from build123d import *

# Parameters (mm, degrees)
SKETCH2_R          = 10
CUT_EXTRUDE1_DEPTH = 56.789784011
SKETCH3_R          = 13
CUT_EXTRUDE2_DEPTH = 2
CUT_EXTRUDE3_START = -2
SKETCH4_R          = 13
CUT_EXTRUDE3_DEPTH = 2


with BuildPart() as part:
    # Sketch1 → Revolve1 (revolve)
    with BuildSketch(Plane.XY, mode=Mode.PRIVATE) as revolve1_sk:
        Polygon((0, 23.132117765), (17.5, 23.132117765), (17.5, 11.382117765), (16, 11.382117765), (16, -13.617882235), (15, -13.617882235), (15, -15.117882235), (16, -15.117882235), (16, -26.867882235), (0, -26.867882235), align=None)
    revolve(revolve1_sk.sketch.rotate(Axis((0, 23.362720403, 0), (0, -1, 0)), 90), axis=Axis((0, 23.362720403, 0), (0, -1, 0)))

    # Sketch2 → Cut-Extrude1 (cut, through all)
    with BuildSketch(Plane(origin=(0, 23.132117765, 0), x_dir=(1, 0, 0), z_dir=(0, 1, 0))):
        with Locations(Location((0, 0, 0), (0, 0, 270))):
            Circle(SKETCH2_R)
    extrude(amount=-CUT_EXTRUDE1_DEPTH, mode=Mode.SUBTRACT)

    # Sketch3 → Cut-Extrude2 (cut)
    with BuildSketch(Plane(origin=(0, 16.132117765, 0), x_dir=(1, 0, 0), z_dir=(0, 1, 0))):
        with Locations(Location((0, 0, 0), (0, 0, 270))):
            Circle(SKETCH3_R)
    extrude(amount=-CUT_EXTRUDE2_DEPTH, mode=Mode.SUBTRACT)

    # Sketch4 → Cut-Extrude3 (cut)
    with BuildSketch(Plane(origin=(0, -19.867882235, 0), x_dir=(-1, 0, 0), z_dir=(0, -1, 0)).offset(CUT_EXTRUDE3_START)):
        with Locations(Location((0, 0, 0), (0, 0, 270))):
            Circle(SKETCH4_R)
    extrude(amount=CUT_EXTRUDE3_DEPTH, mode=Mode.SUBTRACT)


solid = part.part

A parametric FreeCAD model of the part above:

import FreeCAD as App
import Part
import Sketcher

doc = App.newDocument("Part")
body = doc.addObject("PartDesign::Body", "Body")

# Sketch on XY plane
sketch1 = body.newObject("Sketcher::SketchObject", "Sketch")
sketch1.AttachmentSupport = (doc.getObject("XY_Plane"), [""])
sketch1.MapMode = "FlatFace"
sketch1.addGeometry([
    Part.LineSegment(App.Vector(17.5, 23.1, 0), App.Vector(0, 23.1, 0)),  # 0
    Part.LineSegment(App.Vector(0, 23.1, 0), App.Vector(0, -26.9, 0)),  # 1
    Part.LineSegment(App.Vector(0, -26.9, 0), App.Vector(16, -26.9, 0)),  # 2
    Part.LineSegment(App.Vector(16, -26.9, 0), App.Vector(16, -15.1, 0)),  # 3
    Part.LineSegment(App.Vector(16, -15.1, 0), App.Vector(15, -15.1, 0)),  # 4
    Part.LineSegment(App.Vector(15, -15.1, 0), App.Vector(15, -13.6, 0)),  # 5
    Part.LineSegment(App.Vector(15, -13.6, 0), App.Vector(16, -13.6, 0)),  # 6
    Part.LineSegment(App.Vector(16, -13.6, 0), App.Vector(16, 11.4, 0)),  # 7
    Part.LineSegment(App.Vector(16, 11.4, 0), App.Vector(17.5, 11.4, 0)),  # 8
    Part.LineSegment(App.Vector(17.5, 11.4, 0), App.Vector(17.5, 23.1, 0)),  # 9
], False)
sketch1.addConstraint([
    Sketcher.Constraint("Coincident", 0, 2, 1, 1),
    Sketcher.Constraint("Coincident", 1, 2, 2, 1),
    Sketcher.Constraint("Coincident", 2, 2, 3, 1),
    Sketcher.Constraint("Coincident", 3, 2, 4, 1),
    Sketcher.Constraint("Coincident", 4, 2, 5, 1),
    Sketcher.Constraint("Coincident", 5, 2, 6, 1),
    Sketcher.Constraint("Coincident", 6, 2, 7, 1),
    Sketcher.Constraint("Coincident", 7, 2, 8, 1),
    Sketcher.Constraint("Coincident", 8, 2, 9, 1),
    Sketcher.Constraint("Coincident", 9, 2, 0, 1),
    Sketcher.Constraint("Horizontal", 0),
    Sketcher.Constraint("Vertical", 1),
    Sketcher.Constraint("Horizontal", 2),
    Sketcher.Constraint("Vertical", 3),
    Sketcher.Constraint("Horizontal", 4),
    Sketcher.Constraint("Vertical", 5),
    Sketcher.Constraint("Horizontal", 6),
    Sketcher.Constraint("Vertical", 7),
    Sketcher.Constraint("Horizontal", 8),
    Sketcher.Constraint("Vertical", 9),
    Sketcher.Constraint("PointOnObject", 0, 2, -2),
    Sketcher.Constraint("Vertical", 3, 2, 6, 2),
    Sketcher.Constraint("Equal", 8, 5),
    Sketcher.Constraint("Equal", 3, 9),
    Sketcher.Constraint("DistanceX", 2, 1, 2, 2, 16.0),
    Sketcher.Constraint("DistanceX", 4, 2, 4, 1, 1.0),
    Sketcher.Constraint("DistanceY", 1, 2, 1, 1, 50.0),
    Sketcher.Constraint("DistanceY", 7, 1, 7, 2, 25.0),
    Sketcher.Constraint("DistanceX", 0, 2, 0, 1, 17.5),
    Sketcher.Constraint("DistanceY", -1, 1, 0, 2, 23.132118),
])
revolution = body.newObject("PartDesign::Revolution", "Revolution")
revolution.Profile = sketch1
revolution.ReferenceAxis = (sketch1, ["V_Axis"])
revolution.Angle = 360

# Sketch on XZ plane
sketch2 = body.newObject("Sketcher::SketchObject", "Sketch001")
sketch2.AttachmentSupport = (doc.getObject("XZ_Plane"), [""])
sketch2.MapMode = "FlatFace"
sketch2.AttachmentOffset = App.Placement(App.Vector(0, 0, -23.132118), App.Rotation())
sketch2.addGeometry(Part.Circle(App.Vector(0, 0, 0), App.Vector(0, 0, 1), 10), False)
sketch2.addConstraint([
    Sketcher.Constraint("Coincident", 0, 3, -1, 1),
    Sketcher.Constraint("Diameter", 0, 20.0),
])
pocket1 = body.newObject("PartDesign::Pocket", "Pocket")
pocket1.Profile = sketch2
pocket1.Type = "ThroughAll"
pocket1.Reversed = True

# Sketch on XZ plane
sketch3 = body.newObject("Sketcher::SketchObject", "Sketch002")
sketch3.AttachmentSupport = (doc.getObject("XZ_Plane"), [""])
sketch3.MapMode = "FlatFace"
sketch3.AttachmentOffset = App.Placement(App.Vector(0, 0, -16.132118), App.Rotation())
sketch3.addGeometry(Part.Circle(App.Vector(0, 0, 0), App.Vector(0, 0, 1), 13), False)
sketch3.addConstraint([
    Sketcher.Constraint("Coincident", 0, 3, -1, 1),
    Sketcher.Constraint("Diameter", 0, 26.0),
])
pocket2 = body.newObject("PartDesign::Pocket", "Pocket001")
pocket2.Profile = sketch3
pocket2.Length = 2
pocket2.Reversed = True

# Sketch on XZ plane
sketch4 = body.newObject("Sketcher::SketchObject", "Sketch003")
sketch4.AttachmentSupport = (doc.getObject("XZ_Plane"), [""])
sketch4.MapMode = "FlatFace"
sketch4.AttachmentOffset = App.Placement(App.Vector(0, 0, 17.867882), App.Rotation())
sketch4.addGeometry(Part.Circle(App.Vector(0, 0, 0), App.Vector(0, 0, 1), 13), False)
sketch4.addConstraint([
    Sketcher.Constraint("Coincident", 0, 3, -1, 1),
    Sketcher.Constraint("Diameter", 0, 26.0),
])
pocket3 = body.newObject("PartDesign::Pocket", "Pocket002")
pocket3.Profile = sketch4
pocket3.Length = 2
pocket3.Reversed = True

doc.recompute()
